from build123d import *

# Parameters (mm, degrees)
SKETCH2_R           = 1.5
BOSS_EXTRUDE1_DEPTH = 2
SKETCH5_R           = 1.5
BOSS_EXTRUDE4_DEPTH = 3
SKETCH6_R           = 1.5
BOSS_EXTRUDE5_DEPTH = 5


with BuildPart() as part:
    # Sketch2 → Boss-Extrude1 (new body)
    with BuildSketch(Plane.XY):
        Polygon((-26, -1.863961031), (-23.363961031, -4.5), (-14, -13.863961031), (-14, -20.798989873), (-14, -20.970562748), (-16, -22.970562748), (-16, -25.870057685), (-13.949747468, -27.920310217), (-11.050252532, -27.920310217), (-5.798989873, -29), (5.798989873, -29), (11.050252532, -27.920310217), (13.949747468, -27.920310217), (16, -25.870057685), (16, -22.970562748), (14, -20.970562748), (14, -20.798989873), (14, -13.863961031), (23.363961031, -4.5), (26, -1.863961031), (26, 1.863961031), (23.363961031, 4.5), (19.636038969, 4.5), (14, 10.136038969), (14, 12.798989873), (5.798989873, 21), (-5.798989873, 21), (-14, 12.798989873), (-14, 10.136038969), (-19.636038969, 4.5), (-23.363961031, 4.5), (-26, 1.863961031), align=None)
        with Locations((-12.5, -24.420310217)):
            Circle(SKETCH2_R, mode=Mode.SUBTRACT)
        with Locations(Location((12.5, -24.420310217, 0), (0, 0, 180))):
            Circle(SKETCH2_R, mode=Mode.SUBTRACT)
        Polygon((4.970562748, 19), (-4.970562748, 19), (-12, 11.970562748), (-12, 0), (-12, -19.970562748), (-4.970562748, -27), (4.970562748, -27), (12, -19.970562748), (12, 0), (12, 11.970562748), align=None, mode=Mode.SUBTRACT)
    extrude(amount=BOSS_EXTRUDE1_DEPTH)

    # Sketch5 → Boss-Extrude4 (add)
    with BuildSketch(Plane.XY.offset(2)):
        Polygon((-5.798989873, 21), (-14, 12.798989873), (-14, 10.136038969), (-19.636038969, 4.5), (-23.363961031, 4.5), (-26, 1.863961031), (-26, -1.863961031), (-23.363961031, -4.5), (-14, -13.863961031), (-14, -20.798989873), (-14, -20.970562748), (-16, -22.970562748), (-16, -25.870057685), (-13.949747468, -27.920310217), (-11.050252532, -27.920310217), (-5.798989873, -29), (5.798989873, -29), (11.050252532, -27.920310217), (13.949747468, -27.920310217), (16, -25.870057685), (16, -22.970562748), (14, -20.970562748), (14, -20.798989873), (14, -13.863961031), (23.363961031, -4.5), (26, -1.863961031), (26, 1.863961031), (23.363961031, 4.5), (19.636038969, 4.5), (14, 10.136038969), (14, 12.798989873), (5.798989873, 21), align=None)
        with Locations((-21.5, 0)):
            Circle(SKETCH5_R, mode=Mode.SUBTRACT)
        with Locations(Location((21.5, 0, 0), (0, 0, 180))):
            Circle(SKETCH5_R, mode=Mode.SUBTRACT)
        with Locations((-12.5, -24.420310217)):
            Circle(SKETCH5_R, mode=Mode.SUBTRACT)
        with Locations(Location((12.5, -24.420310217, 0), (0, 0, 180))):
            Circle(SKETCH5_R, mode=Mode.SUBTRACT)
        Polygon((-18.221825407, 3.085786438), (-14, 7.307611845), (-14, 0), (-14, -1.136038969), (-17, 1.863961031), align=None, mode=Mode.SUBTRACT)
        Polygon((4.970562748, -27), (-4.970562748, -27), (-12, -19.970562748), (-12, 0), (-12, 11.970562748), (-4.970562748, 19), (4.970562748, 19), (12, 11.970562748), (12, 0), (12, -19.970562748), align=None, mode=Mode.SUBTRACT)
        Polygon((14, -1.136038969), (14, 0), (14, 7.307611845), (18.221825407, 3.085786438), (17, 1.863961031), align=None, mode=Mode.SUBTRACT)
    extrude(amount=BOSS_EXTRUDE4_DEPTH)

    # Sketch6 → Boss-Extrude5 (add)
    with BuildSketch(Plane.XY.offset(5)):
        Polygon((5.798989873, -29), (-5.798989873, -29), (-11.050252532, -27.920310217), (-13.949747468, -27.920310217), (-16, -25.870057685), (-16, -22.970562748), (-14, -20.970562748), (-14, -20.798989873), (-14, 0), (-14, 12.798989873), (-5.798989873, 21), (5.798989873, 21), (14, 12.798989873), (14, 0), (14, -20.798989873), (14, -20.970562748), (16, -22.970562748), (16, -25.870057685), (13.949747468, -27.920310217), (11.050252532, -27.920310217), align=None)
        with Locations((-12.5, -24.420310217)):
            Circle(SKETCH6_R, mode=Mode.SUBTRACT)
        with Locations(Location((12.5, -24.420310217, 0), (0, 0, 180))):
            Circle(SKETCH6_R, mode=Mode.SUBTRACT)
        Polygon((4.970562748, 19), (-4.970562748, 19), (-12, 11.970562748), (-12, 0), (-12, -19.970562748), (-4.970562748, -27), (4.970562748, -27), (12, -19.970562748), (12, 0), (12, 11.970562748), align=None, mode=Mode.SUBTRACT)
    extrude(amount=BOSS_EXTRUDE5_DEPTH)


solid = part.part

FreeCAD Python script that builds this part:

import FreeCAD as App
import Part
import Sketcher

V = App.Vector


def add_polygon(sketch, points):
    """Adds a closed chain of lines whose ends are joined by coincident constraints."""
    first, n = sketch.GeometryCount, len(points)
    for a, b in zip(points, points[1:] + points[:1]):
        sketch.addGeometry(Part.LineSegment(App.Vector(*a, 0), App.Vector(*b, 0)), False)
    for i in range(n):
        sketch.addConstraint(Sketcher.Constraint("Coincident", first + i, 2, first + (i + 1) % n, 1))

doc = App.newDocument("Part")
params = doc.addObject("Spreadsheet::Sheet", "Params")
for row, (alias, value) in enumerate([
    ("sketch1_diameter", "3 mm"),
    ("pad1_length", "2 mm"),
    ("sketch2_diameter", "3 mm"),
    ("pad2_length", "3 mm"),
    ("sketch3_diameter", "3 mm"),
    ("pad3_length", "5 mm"),
], start=1):
    params.set(f"A{row}", alias)
    params.set(f"B{row}", "=" + value)
    params.setAlias(f"B{row}", alias)

body = doc.addObject("PartDesign::Body", "Body")

# Sketch on XY plane
sketch1 = doc.addObject("Sketcher::SketchObject", "Sketch")
body.addObject(sketch1)
sketch1.AttachmentSupport = (doc.XY_Plane, [""])
sketch1.MapMode = "FlatFace"
add_polygon(sketch1, [(-26, -1.9), (-14, -13.9), (-14, -21), (-16, -23), (-16, -25.9), (-13.9, -27.9), (-11.1, -27.9), (-5.8, -29), (5.8, -29), (11.1, -27.9), (13.9, -27.9), (16, -25.9), (16, -23), (14, -21), (14, -13.9), (26, -1.9), (26, 1.9), (23.4, 4.5), (19.6, 4.5), (14, 10.1), (14, 12.8), (5.8, 21), (-5.8, 21), (-14, 12.8), (-14, 10.1), (-19.6, 4.5), (-23.4, 4.5), (-26, 1.9)])  # lines 0-27
sketch1.addGeometry(Part.Circle(V(-12.5, -24.4, 0), V(0, 0, 1), 1.5), False)  # 28
sketch1.addGeometry(Part.Circle(V(12.5, -24.4, 0), V(0, 0, 1), 1.5), False)  # 29
add_polygon(sketch1, [(-5, 19), (5, 19), (12, 12), (12, -20), (5, -27), (-5, -27), (-12, -20), (-12, 12)])  # lines 30-37
sketch1.addConstraint([
    Sketcher.Constraint("Vertical", 1),
    Sketcher.Constraint("Vertical", 3),
    Sketcher.Constraint("Horizontal", 5),
    Sketcher.Constraint("Horizontal", 7),
    Sketcher.Constraint("Horizontal", 9),
    Sketcher.Constraint("Vertical", 11),
    Sketcher.Constraint("Vertical", 13),
    Sketcher.Constraint("Vertical", 15),
    Sketcher.Constraint("Horizontal", 17),
    Sketcher.Constraint("Vertical", 19),
    Sketcher.Constraint("Horizontal", 21),
    Sketcher.Constraint("Vertical", 23),
    Sketcher.Constraint("Horizontal", 25),
    Sketcher.Constraint("Vertical", 27),
    Sketcher.Constraint("Horizontal", 30),
    Sketcher.Constraint("Vertical", 32),
    Sketcher.Constraint("Horizontal", 34),
    Sketcher.Constraint("Vertical", 36),
    Sketcher.Constraint("Equal", 28, 29),
    Sketcher.Constraint("Symmetric", 14, 2, 26, 2, -1, 1),
    Sketcher.Constraint("Symmetric", 28, 3, 29, 3, -2),
    Sketcher.Constraint("Symmetric", 5, 2, 8, 2, -2),
    Sketcher.Constraint("Symmetric", 3, 2, 10, 2, -2),
    Sketcher.Constraint("Symmetric", 1, 2, 12, 2, -2),
    Sketcher.Constraint("Symmetric", 19, 2, 22, 2, -2),
    Sketcher.Constraint("Symmetric", 17, 2, 24, 2, -2),
    Sketcher.Constraint("Symmetric", 32, 2, 35, 2, -2),
    Sketcher.Constraint("Perpendicular", 0, 2),
    Sketcher.Constraint("Perpendicular", 2, 4),
    Sketcher.Constraint("Perpendicular", 4, 10),
    Sketcher.Constraint("Perpendicular", 10, 12),
    Sketcher.Constraint("Perpendicular", 12, 14),
    Sketcher.Constraint("Perpendicular", 14, 16),
    Sketcher.Constraint("Parallel", 16, 18),
    Sketcher.Constraint("Parallel", 18, 20),
    Sketcher.Constraint("Perpendicular", 20, 22),
    Sketcher.Constraint("Parallel", 22, 24),
    Sketcher.Constraint("Parallel", 24, 26),
    Sketcher.Constraint("Perpendicular", 26, 31),
    Sketcher.Constraint("Perpendicular", 31, 33),
    Sketcher.Constraint("Perpendicular", 33, 35),
    Sketcher.Constraint("Perpendicular", 35, 37),
    Sketcher.Constraint("Horizontal", 2, 2, 11, 2),
    Sketcher.Constraint("Horizontal", 0, 2, 13, 2),
    Sketcher.Constraint("Horizontal", 15, 2, 26, 2),
    Sketcher.Constraint("Horizontal", 31, 2, 36, 2),
    Sketcher.Constraint("Vertical", 13, 2, 18, 2),
    Sketcher.Constraint("Vertical", 7, 2, 20, 2),
    Sketcher.Constraint("Vertical", 6, 2, 21, 2),
    Sketcher.Constraint("Vertical", 30, 2, 33, 2),
    Sketcher.Constraint("Equal", 9, 3),
    Sketcher.Constraint("Equal", 25, 15),
    Sketcher.Constraint("Diameter", 28, 3.0),
    Sketcher.Constraint("DistanceX", 0, 2, -1, 1, 14.0),
    Sketcher.Constraint("DistanceX", 2, 2, -1, 1, 16.0),
    Sketcher.Constraint("DistanceY", 6, 2, -1, 1, 29.0),
    Sketcher.Constraint("DistanceX", -1, 1, 14, 2, 26.0),
    Sketcher.Constraint("DistanceY", -1, 1, 20, 2, 21.0),
    Sketcher.Constraint("DistanceY", -1, 1, 30, 2, 19.0),
    Sketcher.Constraint("DistanceX", -1, 1, 31, 2, 12.0),
    Sketcher.Constraint("DistanceY", 33, 2, -1, 1, 27.0),
    Sketcher.Constraint("DistanceX", 28, 3, 29, 3, 25.0),
    Sketcher.Constraint("DistanceX", 5, 2, 9, 2, 25.0),
    Sketcher.Constraint("DistanceY", 12, 2, 32, 2, 1.0),
    Sketcher.Constraint("DistanceY", -1, 1, 16, 2, 4.5),
    Sketcher.Constraint("DistanceY", 4, 2, 28, 3, 3.5),
    Sketcher.Constraint("DistanceY", 1, 2, 1, 1, 7.106602),
    Sketcher.Constraint("DistanceX", 7, 1, 7, 2, 11.59798),
    Sketcher.Constraint("DistanceY", 19, 1, 19, 2, 2.662951),
    Sketcher.Constraint("Distance", 6, 5.361109),
])
sketch1.setExpression("Constraints[88]", "Params.sketch1_diameter")
pad1 = doc.addObject("PartDesign::Pad", "Pad")
body.addObject(pad1)
pad1.Profile = sketch1
pad1.setExpression("Length", "Params.pad1_length")

# Sketch on XY plane
sketch2 = doc.addObject("Sketcher::SketchObject", "Sketch001")
body.addObject(sketch2)
sketch2.AttachmentSupport = (doc.XY_Plane, [""])
sketch2.MapMode = "FlatFace"
sketch2.AttachmentOffset = App.Placement(V(0, 0, 2), App.Rotation())
add_polygon(sketch2, [(-5.8, 21), (-14, 12.8), (-14, 10.1), (-19.6, 4.5), (-23.4, 4.5), (-26, 1.9), (-26, -1.9), (-14, -13.9), (-14, -21), (-16, -23), (-16, -25.9), (-13.9, -27.9), (-11.1, -27.9), (-5.8, -29), (5.8, -29), (11.1, -27.9), (13.9, -27.9), (16, -25.9), (16, -23), (14, -21), (14, -13.9), (26, -1.9), (26, 1.9), (23.4, 4.5), (19.6, 4.5), (14, 10.1), (14, 12.8), (5.8, 21)])  # lines 0-27
sketch2.addGeometry(Part.Circle(V(-12.5, -24.4, 0), V(0, 0, 1), 1.5), False)  # 28
sketch2.addGeometry(Part.Circle(V(12.5, -24.4, 0), V(0, 0, 1), 1.5), False)  # 29
sketch2.addGeometry(Part.Circle(V(-21.5, 0, 0), V(0, 0, 1), 1.5), False)  # 30
add_polygon(sketch2, [(-14, -1.1), (-18.2, 3.1), (-14, 7.3)])  # lines 31-33
add_polygon(sketch2, [(12, -20), (5, -27), (-5, -27), (-12, -20), (-12, 12), (-5, 19), (5, 19), (12, 12)])  # lines 34-41
sketch2.addGeometry(Part.Circle(V(21.5, 0, 0), V(0, 0, 1), 1.5), False)  # 42
add_polygon(sketch2, [(18.2, 3.1), (14, -1.1), (14, 7.3)])  # lines 43-45
sketch2.addConstraint([
    Sketcher.Constraint("Vertical", 1),
    Sketcher.Constraint("Horizontal", 3),
    Sketcher.Constraint("Vertical", 5),
    Sketcher.Constraint("Vertical", 7),
    Sketcher.Constraint("Vertical", 9),
    Sketcher.Constraint("Horizontal", 11),
    Sketcher.Constraint("Horizontal", 13),
    Sketcher.Constraint("Horizontal", 15),
    Sketcher.Constraint("Vertical", 17),
    Sketcher.Constraint("Vertical", 19),
    Sketcher.Constraint("Vertical", 21),
    Sketcher.Constraint("Horizontal", 23),
    Sketcher.Constraint("Vertical", 25),
    Sketcher.Constraint("Horizontal", 27),
    Sketcher.Constraint("Vertical", 33),
    Sketcher.Constraint("Horizontal", 35),
    Sketcher.Constraint("Vertical", 37),
    Sketcher.Constraint("Horizontal", 39),
    Sketcher.Constraint("Vertical", 41),
    Sketcher.Constraint("Vertical", 44),
    Sketcher.Constraint("Equal", 28, 29),
    Sketcher.Constraint("Equal", 29, 30),
    Sketcher.Constraint("Equal", 30, 42),
    Sketcher.Constraint("Symmetric", 30, 3, 42, 3, -1, 1),
    Sketcher.Constraint("Symmetric", 4, 2, 20, 2, -1, 1),
    Sketcher.Constraint("Symmetric", 28, 3, 29, 3, -2),
    Sketcher.Constraint("Symmetric", 11, 2, 14, 2, -2),
    Sketcher.Constraint("Symmetric", 9, 2, 16, 2, -2),
    Sketcher.Constraint("Symmetric", 7, 2, 18, 2, -2),
    Sketcher.Constraint("Symmetric", 3, 2, 22, 2, -2),
    Sketcher.Constraint("Symmetric", 1, 2, 24, 2, -2),
    Sketcher.Constraint("Symmetric", 37, 2, 40, 2, -2),
    Sketcher.Constraint("Symmetric", 33, 2, 43, 2, -2),
    Sketcher.Constraint("Symmetric", 31, 2, 45, 2, -2),
    Sketcher.Constraint("PointOnObject", 30, 3, -1),
    Sketcher.Constraint("Parallel", 0, 2),
    Sketcher.Constraint("Parallel", 2, 4),
    Sketcher.Constraint("Perpendicular", 4, 6),
    Sketcher.Constraint("Perpendicular", 6, 8),
    Sketcher.Constraint("Perpendicular", 8, 10),
    Sketcher.Constraint("Perpendicular", 10, 16),
    Sketcher.Constraint("Perpendicular", 16, 18),
    Sketcher.Constraint("Perpendicular", 18, 20),
    Sketcher.Constraint("Perpendicular", 20, 22),
    Sketcher.Constraint("Parallel", 22, 24),
    Sketcher.Constraint("Parallel", 24, 26),
    Sketcher.Constraint("Parallel", 26, 31),
    Sketcher.Constraint("Perpendicular", 31, 32),
    Sketcher.Constraint("Parallel", 32, 34),
    Sketcher.Constraint("Perpendicular", 34, 36),
    Sketcher.Constraint("Perpendicular", 36, 38),
    Sketcher.Constraint("Perpendicular", 38, 40),
    Sketcher.Constraint("Perpendicular", 40, 43),
    Sketcher.Constraint("Perpendicular", 43, 45),
    Sketcher.Constraint("Horizontal", 6, 2, 19, 2),
    Sketcher.Constraint("Horizontal", 0, 2, 25, 2),
    Sketcher.Constraint("Horizontal", 36, 2, 41, 2),
    Sketcher.Constraint("Vertical", 1, 2, 6, 2),
    Sketcher.Constraint("Vertical", 13, 2, 26, 2),
    Sketcher.Constraint("Vertical", 12, 2, 27, 2),
    Sketcher.Constraint("Vertical", 7, 2, 32, 2),
    Sketcher.Constraint("Vertical", 35, 2, 38, 2),
    Sketcher.Constraint("Equal", 23, 5),
    Sketcher.Constraint("Equal", 15, 9),
    Sketcher.Constraint("Diameter", 28, 3.0),
    Sketcher.Constraint("DistanceX", 0, 2, -1, 1, 14.0),
    Sketcher.Constraint("DistanceX", 4, 2, -1, 1, 26.0),
    Sketcher.Constraint("DistanceX", 8, 2, -1, 1, 16.0),
    Sketcher.Constraint("DistanceY", 12, 2, -1, 1, 29.0),
    Sketcher.Constraint("DistanceY", -1, 1, 26, 2, 21.0),
    Sketcher.Constraint("DistanceY", 34, 2, -1, 1, 27.0),
    Sketcher.Constraint("DistanceX", 36, 2, -1, 1, 12.0),
    Sketcher.Constraint("DistanceY", -1, 1, 38, 2, 19.0),
    Sketcher.Constraint("DistanceX", 28, 3, 29, 3, 25.0),
    Sketcher.Constraint("DistanceX", 30, 3, 28, 3, 9.0),
    Sketcher.Constraint("DistanceX", 11, 2, 15, 2, 25.0),
    Sketcher.Constraint("DistanceY", 7, 2, 36, 2, 1.0),
    Sketcher.Constraint("DistanceY", -1, 1, 2, 2, 4.5),
    Sketcher.Constraint("DistanceY", 10, 2, 28, 3, 3.5),
    Sketcher.Constraint("DistanceY", 7, 2, 7, 1, 7.106602),
    Sketcher.Constraint("DistanceX", 13, 1, 13, 2, 11.59798),
    Sketcher.Constraint("DistanceY", 1, 2, 1, 1, 2.662951),
    Sketcher.Constraint("DistanceY", 33, 2, 33, 1, 8.443651),
    Sketcher.Constraint("DistanceY", 28, 3, 0, 2, 37.2193),
    Sketcher.Constraint("DistanceY", -1, 1, 32, 2, 7.307612),
])
sketch2.setExpression("Constraints[106]", "Params.sketch2_diameter")
pad2 = doc.addObject("PartDesign::Pad", "Pad001")
body.addObject(pad2)
pad2.Profile = sketch2
pad2.setExpression("Length", "Params.pad2_length")

# Sketch on XY plane
sketch3 = doc.addObject("Sketcher::SketchObject", "Sketch002")
body.addObject(sketch3)
sketch3.AttachmentSupport = (doc.XY_Plane, [""])
sketch3.MapMode = "FlatFace"
sketch3.AttachmentOffset = App.Placement(V(0, 0, 5), App.Rotation())
add_polygon(sketch3, [(-5.8, -29), (5.8, -29), (11.1, -27.9), (13.9, -27.9), (16, -25.9), (16, -23), (14, -21), (14, 12.8), (5.8, 21), (-5.8, 21), (-14, 12.8), (-14, -21), (-16, -23), (-16, -25.9), (-13.9, -27.9), (-11.1, -27.9)])  # lines 0-15
sketch3.addGeometry(Part.Circle(V(12.5, -24.4, 0), V(0, 0, 1), 1.5), False)  # 16
sketch3.addGeometry(Part.Circle(V(-12.5, -24.4, 0), V(0, 0, 1), 1.5), False)  # 17
add_polygon(sketch3, [(5, 19), (12, 12), (12, -20), (5, -27), (-5, -27), (-12, -20), (-12, 12), (-5, 19)])  # lines 18-25
sketch3.addConstraint([
    Sketcher.Constraint("Horizontal", 0),
    Sketcher.Constraint("Horizontal", 2),
    Sketcher.Constraint("Vertical", 4),
    Sketcher.Constraint("Vertical", 6),
    Sketcher.Constraint("Horizontal", 8),
    Sketcher.Constraint("Vertical", 10),
    Sketcher.Constraint("Vertical", 12),
    Sketcher.Constraint("Horizontal", 14),
    Sketcher.Constraint("Vertical", 19),
    Sketcher.Constraint("Horizontal", 21),
    Sketcher.Constraint("Vertical", 23),
    Sketcher.Constraint("Horizontal", 25),
    Sketcher.Constraint("Equal", 16, 17),
    Sketcher.Constraint("Symmetric", 16, 3, 17, 3, -2),
    Sketcher.Constraint("Symmetric", 6, 2, 9, 2, -2),
    Sketcher.Constraint("Symmetric", 4, 2, 11, 2, -2),
    Sketcher.Constraint("Symmetric", 2, 2, 13, 2, -2),
    Sketcher.Constraint("Symmetric", 19, 2, 22, 2, -2),
    Sketcher.Constraint("Perpendicular", 3, 5),
    Sketcher.Constraint("Parallel", 5, 7),
    Sketcher.Constraint("Perpendicular", 7, 9),
    Sketcher.Constraint("Parallel", 9, 11),
    Sketcher.Constraint("Perpendicular", 11, 13),
    Sketcher.Constraint("Parallel", 13, 18),
    Sketcher.Constraint("Perpendicular", 18, 20),
    Sketcher.Constraint("Perpendicular", 20, 22),
    Sketcher.Constraint("Perpendicular", 22, 24),
    Sketcher.Constraint("Horizontal", 5, 2, 10, 2),
    Sketcher.Constraint("Horizontal", 18, 2, 23, 2),
    Sketcher.Constraint("Vertical", 0, 2, 7, 2),
    Sketcher.Constraint("Vertical", 8, 2, 15, 2),
    Sketcher.Constraint("Vertical", 21, 2, 24, 2),
    Sketcher.Constraint("Equal", 2, 14),
    Sketcher.Constraint("Equal", 14, 4),
    Sketcher.Constraint("Diameter", 16, 3.0),
    Sketcher.Constraint("DistanceY", 0, 2, -1, 1, 29.0),
    Sketcher.Constraint("DistanceX", -1, 1, 3, 2, 16.0),
    Sketcher.Constraint("DistanceX", -1, 1, 5, 2, 14.0),
    Sketcher.Constraint("DistanceY", -1, 1, 7, 2, 21.0),
    Sketcher.Constraint("DistanceX", -1, 1, 18, 2, 12.0),
    Sketcher.Constraint("DistanceY", 20, 2, -1, 1, 27.0),
    Sketcher.Constraint("DistanceY", -1, 1, 24, 2, 19.0),
    Sketcher.Constraint("DistanceX", 17, 3, 16, 3, 25.0),
    Sketcher.Constraint("DistanceY", 5, 2, 19, 2, 1.0),
    Sketcher.Constraint("DistanceY", 1, 2, 16, 3, 3.5),
    Sketcher.Constraint("DistanceX", 0, 1, 0, 2, 11.59798),
    Sketcher.Constraint("DistanceY", 16, 3, 6, 2, 37.2193),
    Sketcher.Constraint("Distance", 1, 5.361109),
    Sketcher.Constraint("DistanceX", 2, 1, 2, 2, 2.899495),
])
sketch3.setExpression("Constraints[58]", "Params.sketch3_diameter")
pad3 = doc.addObject("PartDesign::Pad", "Pad002")
body.addObject(pad3)
pad3.Profile = sketch3
pad3.setExpression("Length", "Params.pad3_length")

doc.recompute()
